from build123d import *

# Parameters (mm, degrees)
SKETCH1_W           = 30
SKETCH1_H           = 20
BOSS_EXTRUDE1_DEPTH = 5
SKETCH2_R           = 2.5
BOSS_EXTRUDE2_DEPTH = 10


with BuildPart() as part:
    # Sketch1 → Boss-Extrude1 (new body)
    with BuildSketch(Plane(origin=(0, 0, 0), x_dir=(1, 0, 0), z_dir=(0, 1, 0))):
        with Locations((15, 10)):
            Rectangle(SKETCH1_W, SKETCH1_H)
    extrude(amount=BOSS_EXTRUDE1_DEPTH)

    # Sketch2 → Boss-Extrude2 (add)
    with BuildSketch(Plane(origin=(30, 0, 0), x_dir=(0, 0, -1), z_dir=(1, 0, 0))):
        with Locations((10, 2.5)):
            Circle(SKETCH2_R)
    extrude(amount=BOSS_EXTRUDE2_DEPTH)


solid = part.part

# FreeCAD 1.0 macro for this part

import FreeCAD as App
import Part
import Sketcher


def add_polygon(sketch, points):
    """Adds a closed chain of lines whose ends are joined by coincident constraints."""
    first, n = sketch.GeometryCount, len(points)
    for a, b in zip(points, points[1:] + points[:1]):
        sketch.addGeometry(Part.LineSegment(App.Vector(*a, 0), App.Vector(*b, 0)), False)
    for i in range(n):
        sketch.addConstraint(Sketcher.Constraint("Coincident", first + i, 2, first + (i + 1) % n, 1))

doc = App.newDocument("Part")
params = doc.addObject("Spreadsheet::Sheet", "Params")
for row, (alias, value) in enumerate([
    ("sketch1_width", "30 mm"),
    ("sketch1_height", "20 mm"),
    ("pad1_length", "5 mm"),
    ("sketch2_diameter", "5 mm"),
    ("pad2_length", "10 mm"),
], start=1):
    params.set(f"A{row}", alias)
    params.set(f"B{row}", "=" + value)
    params.setAlias(f"B{row}", alias)

body = doc.addObject("PartDesign::Body", "Body")

# Sketch on XZ plane
sketch1 = body.newObject("Sketcher::SketchObject", "Sketch")
sketch1.AttachmentSupport = (doc.getObject("XZ_Plane"), [""])
sketch1.MapMode = "FlatFace"
add_polygon(sketch1, [(0, -20), (0, 0), (30, 0), (30, -20)])  # lines 0-3
sketch1.addConstraint(Sketcher.Constraint("Vertical", 0))
sketch1.addConstraint(Sketcher.Constraint("Horizontal", 1))
sketch1.addConstraint(Sketcher.Constraint("Vertical", 2))
sketch1.addConstraint(Sketcher.Constraint("Horizontal", 3))
sketch1.addConstraint(Sketcher.Constraint("Coincident", 0, 2, -1, 1))
sketch1.addConstraint(Sketcher.Constraint("DistanceX", 1, 1, 1, 2, 30.0))
sketch1.addConstraint(Sketcher.Constraint("DistanceY", 0, 1, 0, 2, 20.0))
sketch1.setExpression("Constraints[9]", "Params.sketch1_width")
sketch1.setExpression("Constraints[10]", "Params.sketch1_height")
pad1 = body.newObject("PartDesign::Pad", "Pad")
pad1.Profile = sketch1
pad1.setExpression("Length", "Params.pad1_length")
pad1.Reversed = True

# Sketch on YZ plane
sketch2 = body.newObject("Sketcher::SketchObject", "Sketch001")
sketch2.AttachmentSupport = (doc.getObject("YZ_Plane"), [""])
sketch2.MapMode = "FlatFace"
sketch2.AttachmentOffset = App.Placement(App.Vector(0, 0, 30), App.Rotation())
sketch2.addGeometry(Part.Circle(App.Vector(2.5, -10, 0), App.Vector(0, 0, 1), 2.5), False)
sketch2.addConstraint(Sketcher.Constraint("Diameter", 0, 5.0))
sketch2.addConstraint(Sketcher.Constraint("DistanceY", 0, 3, -1, 1, 10.0))
sketch2.addConstraint(Sketcher.Constraint("DistanceX", -1, 1, 0, 3, 2.5))
sketch2.setExpression("Constraints[0]", "Params.sketch2_diameter")
pad2 = body.newObject("PartDesign::Pad", "Pad001")
pad2.Profile = sketch2
pad2.setExpression("Length", "Params.pad2_length")

doc.recompute()
